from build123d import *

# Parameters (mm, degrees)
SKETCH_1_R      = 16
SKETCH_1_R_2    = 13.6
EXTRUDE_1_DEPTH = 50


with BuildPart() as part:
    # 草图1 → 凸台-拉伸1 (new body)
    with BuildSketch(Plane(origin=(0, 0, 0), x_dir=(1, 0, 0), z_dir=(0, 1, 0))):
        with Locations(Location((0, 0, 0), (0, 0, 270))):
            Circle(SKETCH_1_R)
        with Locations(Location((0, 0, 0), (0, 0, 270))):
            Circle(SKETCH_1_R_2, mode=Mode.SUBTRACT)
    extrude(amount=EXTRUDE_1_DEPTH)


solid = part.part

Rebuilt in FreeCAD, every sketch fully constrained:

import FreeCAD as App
import Part
import Sketcher
Q = App.Units.Quantity

doc = App.newDocument("Part")
body = doc.addObject("PartDesign::Body", "Body")

sketch1 = body.newObject("Sketcher::SketchObject", "Sketch")
sketch1.AttachmentSupport = (doc.getObject("XZ_Plane"), [""])
sketch1.MapMode = "FlatFace"
sketch1.addGeometry(Part.Circle(App.Vector(0, 0, 0), App.Vector(0, 0, 1), 16), False)
sketch1.addGeometry(Part.Circle(App.Vector(0, 0, 0), App.Vector(0, 0, 1), 13.6), False)
sketch1.addConstraint(Sketcher.Constraint("Coincident", 0, 3, -1, 1))
sketch1.addConstraint(Sketcher.Constraint("Coincident", 1, 3, -1, 1))
sketch1.addConstraint(Sketcher.Constraint("Diameter", 0, Q("32 mm")))
sketch1.addConstraint(Sketcher.Constraint("Diameter", 1, Q("27.2 mm")))
pad1 = body.newObject("PartDesign::Pad", "Pad")
pad1.Profile = sketch1
pad1.Length = 50
pad1.Reversed = True

doc.recompute()
